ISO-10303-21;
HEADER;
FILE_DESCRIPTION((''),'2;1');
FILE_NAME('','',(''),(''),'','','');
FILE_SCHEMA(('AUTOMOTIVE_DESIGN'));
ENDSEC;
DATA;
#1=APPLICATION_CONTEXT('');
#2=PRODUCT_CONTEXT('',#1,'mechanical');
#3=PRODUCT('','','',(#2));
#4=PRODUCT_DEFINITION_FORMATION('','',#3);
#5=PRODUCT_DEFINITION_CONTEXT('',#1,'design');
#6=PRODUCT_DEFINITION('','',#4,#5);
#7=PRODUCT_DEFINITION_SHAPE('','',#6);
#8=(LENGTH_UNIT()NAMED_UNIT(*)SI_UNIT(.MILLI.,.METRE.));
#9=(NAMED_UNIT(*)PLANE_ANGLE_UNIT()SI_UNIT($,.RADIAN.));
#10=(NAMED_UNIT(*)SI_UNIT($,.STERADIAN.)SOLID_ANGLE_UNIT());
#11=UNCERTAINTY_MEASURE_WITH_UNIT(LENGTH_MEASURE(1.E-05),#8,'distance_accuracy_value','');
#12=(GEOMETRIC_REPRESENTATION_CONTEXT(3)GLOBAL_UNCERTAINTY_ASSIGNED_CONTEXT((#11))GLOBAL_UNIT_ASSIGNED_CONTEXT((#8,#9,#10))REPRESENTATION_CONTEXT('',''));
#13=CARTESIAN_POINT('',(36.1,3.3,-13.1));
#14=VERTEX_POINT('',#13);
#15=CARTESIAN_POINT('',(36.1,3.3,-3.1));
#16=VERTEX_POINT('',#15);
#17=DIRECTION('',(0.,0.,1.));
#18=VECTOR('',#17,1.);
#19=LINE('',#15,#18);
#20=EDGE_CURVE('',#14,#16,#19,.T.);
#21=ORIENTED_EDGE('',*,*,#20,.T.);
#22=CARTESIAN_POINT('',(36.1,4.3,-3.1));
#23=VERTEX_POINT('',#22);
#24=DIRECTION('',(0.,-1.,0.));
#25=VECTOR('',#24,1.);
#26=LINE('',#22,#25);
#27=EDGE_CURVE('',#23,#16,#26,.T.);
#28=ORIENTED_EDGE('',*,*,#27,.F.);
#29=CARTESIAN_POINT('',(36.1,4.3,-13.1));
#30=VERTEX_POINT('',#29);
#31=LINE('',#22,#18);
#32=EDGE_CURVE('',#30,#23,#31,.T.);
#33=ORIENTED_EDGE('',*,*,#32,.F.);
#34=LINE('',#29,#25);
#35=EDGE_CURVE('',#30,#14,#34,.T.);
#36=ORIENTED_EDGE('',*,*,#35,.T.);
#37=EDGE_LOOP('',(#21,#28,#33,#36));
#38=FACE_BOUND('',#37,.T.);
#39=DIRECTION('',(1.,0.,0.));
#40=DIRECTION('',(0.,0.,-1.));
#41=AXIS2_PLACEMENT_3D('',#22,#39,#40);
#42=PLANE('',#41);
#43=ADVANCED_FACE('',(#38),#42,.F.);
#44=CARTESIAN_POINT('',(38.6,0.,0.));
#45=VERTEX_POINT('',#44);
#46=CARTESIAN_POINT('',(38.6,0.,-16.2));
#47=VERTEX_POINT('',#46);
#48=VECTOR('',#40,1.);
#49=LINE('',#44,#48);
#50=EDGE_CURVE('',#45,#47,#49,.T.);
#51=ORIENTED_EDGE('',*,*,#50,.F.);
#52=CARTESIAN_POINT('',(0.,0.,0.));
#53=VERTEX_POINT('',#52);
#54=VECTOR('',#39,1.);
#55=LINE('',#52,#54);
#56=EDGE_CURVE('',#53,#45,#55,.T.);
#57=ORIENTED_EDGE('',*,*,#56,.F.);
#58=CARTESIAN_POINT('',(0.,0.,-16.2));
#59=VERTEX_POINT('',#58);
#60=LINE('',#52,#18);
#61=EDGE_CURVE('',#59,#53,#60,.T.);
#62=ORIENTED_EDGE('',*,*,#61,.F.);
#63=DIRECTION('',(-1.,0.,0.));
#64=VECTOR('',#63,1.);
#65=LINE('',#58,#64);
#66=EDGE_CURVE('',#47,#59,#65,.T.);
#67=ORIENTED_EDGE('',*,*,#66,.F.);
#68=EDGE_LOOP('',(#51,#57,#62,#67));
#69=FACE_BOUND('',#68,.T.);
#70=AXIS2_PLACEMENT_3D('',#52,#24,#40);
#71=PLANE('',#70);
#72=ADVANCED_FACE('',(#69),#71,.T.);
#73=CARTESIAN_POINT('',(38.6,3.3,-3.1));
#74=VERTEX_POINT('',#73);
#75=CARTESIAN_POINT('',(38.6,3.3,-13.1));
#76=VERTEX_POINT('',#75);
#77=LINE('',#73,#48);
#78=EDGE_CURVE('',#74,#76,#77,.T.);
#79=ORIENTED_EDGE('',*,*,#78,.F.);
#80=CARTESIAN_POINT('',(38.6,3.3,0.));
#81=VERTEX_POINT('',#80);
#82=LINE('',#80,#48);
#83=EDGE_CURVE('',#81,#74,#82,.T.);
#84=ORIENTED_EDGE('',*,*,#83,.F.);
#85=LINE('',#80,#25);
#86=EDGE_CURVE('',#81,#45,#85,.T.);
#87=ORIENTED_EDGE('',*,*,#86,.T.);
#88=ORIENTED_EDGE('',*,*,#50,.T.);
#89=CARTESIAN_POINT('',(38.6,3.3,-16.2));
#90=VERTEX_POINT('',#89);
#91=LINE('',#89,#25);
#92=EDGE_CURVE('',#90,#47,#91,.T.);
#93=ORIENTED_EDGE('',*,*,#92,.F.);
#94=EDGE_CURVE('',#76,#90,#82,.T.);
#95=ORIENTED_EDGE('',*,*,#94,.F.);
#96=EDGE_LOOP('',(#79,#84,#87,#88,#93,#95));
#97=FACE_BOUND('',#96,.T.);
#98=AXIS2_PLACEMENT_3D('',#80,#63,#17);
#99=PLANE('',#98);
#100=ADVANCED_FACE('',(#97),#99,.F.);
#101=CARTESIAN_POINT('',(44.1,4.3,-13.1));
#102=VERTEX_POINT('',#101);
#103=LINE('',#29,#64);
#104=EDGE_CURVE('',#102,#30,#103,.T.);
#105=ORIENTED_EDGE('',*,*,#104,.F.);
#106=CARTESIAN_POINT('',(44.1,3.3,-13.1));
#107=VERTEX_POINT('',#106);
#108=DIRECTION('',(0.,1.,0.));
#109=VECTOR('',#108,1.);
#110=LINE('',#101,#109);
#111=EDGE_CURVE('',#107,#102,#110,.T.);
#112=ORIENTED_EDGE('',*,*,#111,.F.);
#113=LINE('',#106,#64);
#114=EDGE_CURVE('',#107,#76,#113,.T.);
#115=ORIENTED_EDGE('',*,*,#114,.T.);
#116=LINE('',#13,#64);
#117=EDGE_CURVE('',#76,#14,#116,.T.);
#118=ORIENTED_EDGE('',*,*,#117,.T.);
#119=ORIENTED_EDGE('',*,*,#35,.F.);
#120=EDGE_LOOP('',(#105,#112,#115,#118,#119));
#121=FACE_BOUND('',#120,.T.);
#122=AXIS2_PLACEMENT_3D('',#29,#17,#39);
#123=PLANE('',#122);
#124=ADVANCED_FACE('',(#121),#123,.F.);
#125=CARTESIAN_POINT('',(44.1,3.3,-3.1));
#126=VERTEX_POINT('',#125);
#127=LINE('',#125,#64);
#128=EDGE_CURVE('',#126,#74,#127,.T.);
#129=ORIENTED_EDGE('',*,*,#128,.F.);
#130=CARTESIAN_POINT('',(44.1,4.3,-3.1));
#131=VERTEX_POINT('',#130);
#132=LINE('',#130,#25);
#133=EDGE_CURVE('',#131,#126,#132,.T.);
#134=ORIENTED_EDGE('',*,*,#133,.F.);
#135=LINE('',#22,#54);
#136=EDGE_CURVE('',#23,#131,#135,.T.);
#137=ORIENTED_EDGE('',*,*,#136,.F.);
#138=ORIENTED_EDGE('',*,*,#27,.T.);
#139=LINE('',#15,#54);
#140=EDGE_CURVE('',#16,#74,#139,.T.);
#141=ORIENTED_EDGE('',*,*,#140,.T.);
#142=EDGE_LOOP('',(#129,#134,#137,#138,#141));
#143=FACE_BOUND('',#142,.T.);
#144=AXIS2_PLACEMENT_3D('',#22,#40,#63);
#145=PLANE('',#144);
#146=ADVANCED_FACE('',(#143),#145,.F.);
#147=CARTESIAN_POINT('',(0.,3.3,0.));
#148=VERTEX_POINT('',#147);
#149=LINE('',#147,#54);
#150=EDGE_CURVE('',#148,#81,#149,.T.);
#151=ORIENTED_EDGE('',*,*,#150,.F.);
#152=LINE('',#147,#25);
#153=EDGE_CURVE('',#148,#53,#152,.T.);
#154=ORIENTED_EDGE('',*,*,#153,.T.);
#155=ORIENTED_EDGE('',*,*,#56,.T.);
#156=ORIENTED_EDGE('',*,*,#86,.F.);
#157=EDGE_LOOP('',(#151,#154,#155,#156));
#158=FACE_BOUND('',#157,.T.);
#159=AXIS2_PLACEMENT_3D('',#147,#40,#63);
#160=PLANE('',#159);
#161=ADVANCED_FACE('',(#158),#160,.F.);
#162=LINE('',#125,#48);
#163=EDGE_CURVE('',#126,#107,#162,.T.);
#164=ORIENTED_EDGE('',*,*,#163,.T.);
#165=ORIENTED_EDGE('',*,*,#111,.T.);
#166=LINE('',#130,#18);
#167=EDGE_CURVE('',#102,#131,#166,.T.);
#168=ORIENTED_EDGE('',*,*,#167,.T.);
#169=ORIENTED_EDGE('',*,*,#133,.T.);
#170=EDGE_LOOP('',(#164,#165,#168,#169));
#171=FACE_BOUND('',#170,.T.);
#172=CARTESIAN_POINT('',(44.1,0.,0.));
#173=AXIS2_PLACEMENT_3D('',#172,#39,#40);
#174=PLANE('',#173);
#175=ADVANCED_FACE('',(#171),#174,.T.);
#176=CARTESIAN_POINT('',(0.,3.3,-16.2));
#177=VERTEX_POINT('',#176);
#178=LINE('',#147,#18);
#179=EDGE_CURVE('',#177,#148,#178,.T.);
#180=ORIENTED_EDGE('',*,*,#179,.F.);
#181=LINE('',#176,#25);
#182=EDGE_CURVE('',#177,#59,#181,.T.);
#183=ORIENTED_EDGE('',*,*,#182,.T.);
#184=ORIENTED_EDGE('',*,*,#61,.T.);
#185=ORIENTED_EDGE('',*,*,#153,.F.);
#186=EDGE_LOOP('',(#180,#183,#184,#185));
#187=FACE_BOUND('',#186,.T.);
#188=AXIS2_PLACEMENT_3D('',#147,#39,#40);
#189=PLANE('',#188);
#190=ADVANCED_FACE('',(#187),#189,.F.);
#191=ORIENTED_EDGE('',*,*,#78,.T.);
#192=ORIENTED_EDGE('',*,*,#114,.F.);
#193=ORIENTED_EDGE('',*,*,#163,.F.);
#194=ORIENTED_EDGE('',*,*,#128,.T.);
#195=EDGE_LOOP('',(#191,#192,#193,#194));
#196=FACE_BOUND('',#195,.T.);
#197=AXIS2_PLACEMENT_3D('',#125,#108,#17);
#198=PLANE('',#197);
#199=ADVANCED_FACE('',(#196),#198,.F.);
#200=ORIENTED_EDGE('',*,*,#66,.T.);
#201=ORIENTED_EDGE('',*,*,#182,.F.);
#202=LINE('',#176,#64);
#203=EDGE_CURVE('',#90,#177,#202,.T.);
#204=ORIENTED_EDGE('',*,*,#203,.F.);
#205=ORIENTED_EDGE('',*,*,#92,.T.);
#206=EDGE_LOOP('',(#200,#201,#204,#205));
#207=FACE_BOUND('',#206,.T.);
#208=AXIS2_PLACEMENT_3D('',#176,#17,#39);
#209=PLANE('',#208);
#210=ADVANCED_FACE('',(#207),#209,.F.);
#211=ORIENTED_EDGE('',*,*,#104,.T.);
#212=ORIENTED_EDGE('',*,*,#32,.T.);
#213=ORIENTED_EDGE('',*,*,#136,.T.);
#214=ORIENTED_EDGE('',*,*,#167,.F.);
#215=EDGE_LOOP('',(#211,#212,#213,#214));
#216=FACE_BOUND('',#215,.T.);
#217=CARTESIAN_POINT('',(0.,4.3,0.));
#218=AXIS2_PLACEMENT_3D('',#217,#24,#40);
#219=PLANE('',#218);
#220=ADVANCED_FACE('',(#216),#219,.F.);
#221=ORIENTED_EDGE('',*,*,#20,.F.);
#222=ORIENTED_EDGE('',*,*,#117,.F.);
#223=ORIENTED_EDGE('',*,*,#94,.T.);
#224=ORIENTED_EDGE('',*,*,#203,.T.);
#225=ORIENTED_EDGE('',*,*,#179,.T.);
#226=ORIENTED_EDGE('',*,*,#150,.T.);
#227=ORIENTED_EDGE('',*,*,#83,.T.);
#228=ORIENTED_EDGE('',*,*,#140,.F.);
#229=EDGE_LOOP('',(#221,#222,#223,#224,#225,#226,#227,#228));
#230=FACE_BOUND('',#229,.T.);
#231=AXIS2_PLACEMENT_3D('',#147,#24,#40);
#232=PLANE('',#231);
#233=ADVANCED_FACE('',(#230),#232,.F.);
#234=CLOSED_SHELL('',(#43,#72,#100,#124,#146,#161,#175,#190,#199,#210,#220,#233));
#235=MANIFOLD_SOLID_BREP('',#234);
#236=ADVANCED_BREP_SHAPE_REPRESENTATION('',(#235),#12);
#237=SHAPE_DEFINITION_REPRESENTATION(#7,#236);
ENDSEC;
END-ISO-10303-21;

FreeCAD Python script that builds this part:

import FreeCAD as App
import Part
import Sketcher
Q = App.Units.Quantity


def add_polygon(sketch, points):
    """Adds a closed chain of lines whose ends are joined by coincident constraints."""
    first, n = sketch.GeometryCount, len(points)
    for a, b in zip(points, points[1:] + points[:1]):
        sketch.addGeometry(Part.LineSegment(App.Vector(*a, 0), App.Vector(*b, 0)), False)
    for i in range(n):
        sketch.addConstraint(Sketcher.Constraint("Coincident", first + i, 2, first + (i + 1) % n, 1))

doc = App.newDocument("Part")
params = doc.addObject("Spreadsheet::Sheet", "Params")
for row, (alias, value) in enumerate([
    ("sketch1_width", "38.6 mm"),
    ("sketch1_height", "16.2 mm"),
    ("pad1_length", "3.3 mm"),
    ("sketch2_height", "10 mm"),
    ("sketch2_width", "2.5 mm"),
    ("pad2_length", "1 mm"),
    ("sketch3_width", "1 mm"),
    ("sketch3_height", "10 mm"),
    ("pad3_length", "5.5 mm"),
], start=1):
    params.set(f"A{row}", alias)
    params.set(f"B{row}", "=" + value)
    params.setAlias(f"B{row}", alias)

body = doc.addObject("PartDesign::Body", "Body")

sketch1 = body.newObject("Sketcher::SketchObject", "Sketch")
sketch1.AttachmentSupport = (doc.getObject("XZ_Plane"), [""])
sketch1.MapMode = "FlatFace"
add_polygon(sketch1, [(0, -16.2), (0, 0), (38.6, 0), (38.6, -16.2)])
sketch1.addConstraint([
    Sketcher.Constraint("Vertical", 0),
    Sketcher.Constraint("Horizontal", 1),
    Sketcher.Constraint("Vertical", 2),
    Sketcher.Constraint("Horizontal", 3),
    Sketcher.Constraint("Coincident", 0, 2, -1, 1),
    Sketcher.Constraint("DistanceX", 1, 1, 1, 2, Q("38.6 mm")),
    Sketcher.Constraint("DistanceY", 0, 1, 0, 2, Q("16.2 mm")),
])
sketch1.setExpression("Constraints[9]", "Params.sketch1_width")
sketch1.setExpression("Constraints[10]", "Params.sketch1_height")
pad1 = body.newObject("PartDesign::Pad", "Pad")
pad1.Profile = sketch1
pad1.setExpression("Length", "Params.pad1_length")
pad1.Reversed = True

sketch2 = body.newObject("Sketcher::SketchObject", "Sketch001")
sketch2.AttachmentSupport = (doc.getObject("XZ_Plane"), [""])
sketch2.MapMode = "FlatFace"
sketch2.AttachmentOffset = App.Placement(App.Vector(0, 0, -3.3), App.Rotation())
add_polygon(sketch2, [(36.1, -13.1), (36.1, -3.1), (38.6, -3.1), (38.6, -13.1)])
sketch2.addConstraint([
    Sketcher.Constraint("Vertical", 0),
    Sketcher.Constraint("Horizontal", 1),
    Sketcher.Constraint("Vertical", 2),
    Sketcher.Constraint("Horizontal", 3),
    Sketcher.Constraint("DistanceY", 0, 1, 0, 2, Q("10 mm")),
    Sketcher.Constraint("DistanceX", 1, 1, 1, 2, Q("2.5 mm")),
    Sketcher.Constraint("DistanceX", -1, 1, 0, 2, Q("36.1 mm")),
    Sketcher.Constraint("DistanceY", 0, 2, -1, 1, Q("3.1 mm")),
])
sketch2.setExpression("Constraints[8]", "Params.sketch2_height")
sketch2.setExpression("Constraints[9]", "Params.sketch2_width")
pad2 = body.newObject("PartDesign::Pad", "Pad001")
pad2.Profile = sketch2
pad2.setExpression("Length", "Params.pad2_length")
pad2.Reversed = True

sketch3 = body.newObject("Sketcher::SketchObject", "Sketch002")
sketch3.AttachmentSupport = (doc.getObject("YZ_Plane"), [""])
sketch3.MapMode = "FlatFace"
sketch3.AttachmentOffset = App.Placement(App.Vector(0, 0, 38.6), App.Rotation())
add_polygon(sketch3, [(4.3, -3.1), (3.3, -3.1), (3.3, -13.1), (4.3, -13.1)])
sketch3.addConstraint([
    Sketcher.Constraint("Horizontal", 0),
    Sketcher.Constraint("Vertical", 1),
    Sketcher.Constraint("Horizontal", 2),
    Sketcher.Constraint("Vertical", 3),
    Sketcher.Constraint("DistanceX", 0, 2, 0, 1, Q("1 mm")),
    Sketcher.Constraint("DistanceY", 1, 2, 1, 1, Q("10 mm")),
    Sketcher.Constraint("DistanceX", -1, 1, 0, 2, Q("3.3 mm")),
    Sketcher.Constraint("DistanceY", 0, 2, -1, 1, Q("3.1 mm")),
])
sketch3.setExpression("Constraints[8]", "Params.sketch3_width")
sketch3.setExpression("Constraints[9]", "Params.sketch3_height")
pad3 = body.newObject("PartDesign::Pad", "Pad002")
pad3.Profile = sketch3
pad3.setExpression("Length", "Params.pad3_length")

doc.recompute()
